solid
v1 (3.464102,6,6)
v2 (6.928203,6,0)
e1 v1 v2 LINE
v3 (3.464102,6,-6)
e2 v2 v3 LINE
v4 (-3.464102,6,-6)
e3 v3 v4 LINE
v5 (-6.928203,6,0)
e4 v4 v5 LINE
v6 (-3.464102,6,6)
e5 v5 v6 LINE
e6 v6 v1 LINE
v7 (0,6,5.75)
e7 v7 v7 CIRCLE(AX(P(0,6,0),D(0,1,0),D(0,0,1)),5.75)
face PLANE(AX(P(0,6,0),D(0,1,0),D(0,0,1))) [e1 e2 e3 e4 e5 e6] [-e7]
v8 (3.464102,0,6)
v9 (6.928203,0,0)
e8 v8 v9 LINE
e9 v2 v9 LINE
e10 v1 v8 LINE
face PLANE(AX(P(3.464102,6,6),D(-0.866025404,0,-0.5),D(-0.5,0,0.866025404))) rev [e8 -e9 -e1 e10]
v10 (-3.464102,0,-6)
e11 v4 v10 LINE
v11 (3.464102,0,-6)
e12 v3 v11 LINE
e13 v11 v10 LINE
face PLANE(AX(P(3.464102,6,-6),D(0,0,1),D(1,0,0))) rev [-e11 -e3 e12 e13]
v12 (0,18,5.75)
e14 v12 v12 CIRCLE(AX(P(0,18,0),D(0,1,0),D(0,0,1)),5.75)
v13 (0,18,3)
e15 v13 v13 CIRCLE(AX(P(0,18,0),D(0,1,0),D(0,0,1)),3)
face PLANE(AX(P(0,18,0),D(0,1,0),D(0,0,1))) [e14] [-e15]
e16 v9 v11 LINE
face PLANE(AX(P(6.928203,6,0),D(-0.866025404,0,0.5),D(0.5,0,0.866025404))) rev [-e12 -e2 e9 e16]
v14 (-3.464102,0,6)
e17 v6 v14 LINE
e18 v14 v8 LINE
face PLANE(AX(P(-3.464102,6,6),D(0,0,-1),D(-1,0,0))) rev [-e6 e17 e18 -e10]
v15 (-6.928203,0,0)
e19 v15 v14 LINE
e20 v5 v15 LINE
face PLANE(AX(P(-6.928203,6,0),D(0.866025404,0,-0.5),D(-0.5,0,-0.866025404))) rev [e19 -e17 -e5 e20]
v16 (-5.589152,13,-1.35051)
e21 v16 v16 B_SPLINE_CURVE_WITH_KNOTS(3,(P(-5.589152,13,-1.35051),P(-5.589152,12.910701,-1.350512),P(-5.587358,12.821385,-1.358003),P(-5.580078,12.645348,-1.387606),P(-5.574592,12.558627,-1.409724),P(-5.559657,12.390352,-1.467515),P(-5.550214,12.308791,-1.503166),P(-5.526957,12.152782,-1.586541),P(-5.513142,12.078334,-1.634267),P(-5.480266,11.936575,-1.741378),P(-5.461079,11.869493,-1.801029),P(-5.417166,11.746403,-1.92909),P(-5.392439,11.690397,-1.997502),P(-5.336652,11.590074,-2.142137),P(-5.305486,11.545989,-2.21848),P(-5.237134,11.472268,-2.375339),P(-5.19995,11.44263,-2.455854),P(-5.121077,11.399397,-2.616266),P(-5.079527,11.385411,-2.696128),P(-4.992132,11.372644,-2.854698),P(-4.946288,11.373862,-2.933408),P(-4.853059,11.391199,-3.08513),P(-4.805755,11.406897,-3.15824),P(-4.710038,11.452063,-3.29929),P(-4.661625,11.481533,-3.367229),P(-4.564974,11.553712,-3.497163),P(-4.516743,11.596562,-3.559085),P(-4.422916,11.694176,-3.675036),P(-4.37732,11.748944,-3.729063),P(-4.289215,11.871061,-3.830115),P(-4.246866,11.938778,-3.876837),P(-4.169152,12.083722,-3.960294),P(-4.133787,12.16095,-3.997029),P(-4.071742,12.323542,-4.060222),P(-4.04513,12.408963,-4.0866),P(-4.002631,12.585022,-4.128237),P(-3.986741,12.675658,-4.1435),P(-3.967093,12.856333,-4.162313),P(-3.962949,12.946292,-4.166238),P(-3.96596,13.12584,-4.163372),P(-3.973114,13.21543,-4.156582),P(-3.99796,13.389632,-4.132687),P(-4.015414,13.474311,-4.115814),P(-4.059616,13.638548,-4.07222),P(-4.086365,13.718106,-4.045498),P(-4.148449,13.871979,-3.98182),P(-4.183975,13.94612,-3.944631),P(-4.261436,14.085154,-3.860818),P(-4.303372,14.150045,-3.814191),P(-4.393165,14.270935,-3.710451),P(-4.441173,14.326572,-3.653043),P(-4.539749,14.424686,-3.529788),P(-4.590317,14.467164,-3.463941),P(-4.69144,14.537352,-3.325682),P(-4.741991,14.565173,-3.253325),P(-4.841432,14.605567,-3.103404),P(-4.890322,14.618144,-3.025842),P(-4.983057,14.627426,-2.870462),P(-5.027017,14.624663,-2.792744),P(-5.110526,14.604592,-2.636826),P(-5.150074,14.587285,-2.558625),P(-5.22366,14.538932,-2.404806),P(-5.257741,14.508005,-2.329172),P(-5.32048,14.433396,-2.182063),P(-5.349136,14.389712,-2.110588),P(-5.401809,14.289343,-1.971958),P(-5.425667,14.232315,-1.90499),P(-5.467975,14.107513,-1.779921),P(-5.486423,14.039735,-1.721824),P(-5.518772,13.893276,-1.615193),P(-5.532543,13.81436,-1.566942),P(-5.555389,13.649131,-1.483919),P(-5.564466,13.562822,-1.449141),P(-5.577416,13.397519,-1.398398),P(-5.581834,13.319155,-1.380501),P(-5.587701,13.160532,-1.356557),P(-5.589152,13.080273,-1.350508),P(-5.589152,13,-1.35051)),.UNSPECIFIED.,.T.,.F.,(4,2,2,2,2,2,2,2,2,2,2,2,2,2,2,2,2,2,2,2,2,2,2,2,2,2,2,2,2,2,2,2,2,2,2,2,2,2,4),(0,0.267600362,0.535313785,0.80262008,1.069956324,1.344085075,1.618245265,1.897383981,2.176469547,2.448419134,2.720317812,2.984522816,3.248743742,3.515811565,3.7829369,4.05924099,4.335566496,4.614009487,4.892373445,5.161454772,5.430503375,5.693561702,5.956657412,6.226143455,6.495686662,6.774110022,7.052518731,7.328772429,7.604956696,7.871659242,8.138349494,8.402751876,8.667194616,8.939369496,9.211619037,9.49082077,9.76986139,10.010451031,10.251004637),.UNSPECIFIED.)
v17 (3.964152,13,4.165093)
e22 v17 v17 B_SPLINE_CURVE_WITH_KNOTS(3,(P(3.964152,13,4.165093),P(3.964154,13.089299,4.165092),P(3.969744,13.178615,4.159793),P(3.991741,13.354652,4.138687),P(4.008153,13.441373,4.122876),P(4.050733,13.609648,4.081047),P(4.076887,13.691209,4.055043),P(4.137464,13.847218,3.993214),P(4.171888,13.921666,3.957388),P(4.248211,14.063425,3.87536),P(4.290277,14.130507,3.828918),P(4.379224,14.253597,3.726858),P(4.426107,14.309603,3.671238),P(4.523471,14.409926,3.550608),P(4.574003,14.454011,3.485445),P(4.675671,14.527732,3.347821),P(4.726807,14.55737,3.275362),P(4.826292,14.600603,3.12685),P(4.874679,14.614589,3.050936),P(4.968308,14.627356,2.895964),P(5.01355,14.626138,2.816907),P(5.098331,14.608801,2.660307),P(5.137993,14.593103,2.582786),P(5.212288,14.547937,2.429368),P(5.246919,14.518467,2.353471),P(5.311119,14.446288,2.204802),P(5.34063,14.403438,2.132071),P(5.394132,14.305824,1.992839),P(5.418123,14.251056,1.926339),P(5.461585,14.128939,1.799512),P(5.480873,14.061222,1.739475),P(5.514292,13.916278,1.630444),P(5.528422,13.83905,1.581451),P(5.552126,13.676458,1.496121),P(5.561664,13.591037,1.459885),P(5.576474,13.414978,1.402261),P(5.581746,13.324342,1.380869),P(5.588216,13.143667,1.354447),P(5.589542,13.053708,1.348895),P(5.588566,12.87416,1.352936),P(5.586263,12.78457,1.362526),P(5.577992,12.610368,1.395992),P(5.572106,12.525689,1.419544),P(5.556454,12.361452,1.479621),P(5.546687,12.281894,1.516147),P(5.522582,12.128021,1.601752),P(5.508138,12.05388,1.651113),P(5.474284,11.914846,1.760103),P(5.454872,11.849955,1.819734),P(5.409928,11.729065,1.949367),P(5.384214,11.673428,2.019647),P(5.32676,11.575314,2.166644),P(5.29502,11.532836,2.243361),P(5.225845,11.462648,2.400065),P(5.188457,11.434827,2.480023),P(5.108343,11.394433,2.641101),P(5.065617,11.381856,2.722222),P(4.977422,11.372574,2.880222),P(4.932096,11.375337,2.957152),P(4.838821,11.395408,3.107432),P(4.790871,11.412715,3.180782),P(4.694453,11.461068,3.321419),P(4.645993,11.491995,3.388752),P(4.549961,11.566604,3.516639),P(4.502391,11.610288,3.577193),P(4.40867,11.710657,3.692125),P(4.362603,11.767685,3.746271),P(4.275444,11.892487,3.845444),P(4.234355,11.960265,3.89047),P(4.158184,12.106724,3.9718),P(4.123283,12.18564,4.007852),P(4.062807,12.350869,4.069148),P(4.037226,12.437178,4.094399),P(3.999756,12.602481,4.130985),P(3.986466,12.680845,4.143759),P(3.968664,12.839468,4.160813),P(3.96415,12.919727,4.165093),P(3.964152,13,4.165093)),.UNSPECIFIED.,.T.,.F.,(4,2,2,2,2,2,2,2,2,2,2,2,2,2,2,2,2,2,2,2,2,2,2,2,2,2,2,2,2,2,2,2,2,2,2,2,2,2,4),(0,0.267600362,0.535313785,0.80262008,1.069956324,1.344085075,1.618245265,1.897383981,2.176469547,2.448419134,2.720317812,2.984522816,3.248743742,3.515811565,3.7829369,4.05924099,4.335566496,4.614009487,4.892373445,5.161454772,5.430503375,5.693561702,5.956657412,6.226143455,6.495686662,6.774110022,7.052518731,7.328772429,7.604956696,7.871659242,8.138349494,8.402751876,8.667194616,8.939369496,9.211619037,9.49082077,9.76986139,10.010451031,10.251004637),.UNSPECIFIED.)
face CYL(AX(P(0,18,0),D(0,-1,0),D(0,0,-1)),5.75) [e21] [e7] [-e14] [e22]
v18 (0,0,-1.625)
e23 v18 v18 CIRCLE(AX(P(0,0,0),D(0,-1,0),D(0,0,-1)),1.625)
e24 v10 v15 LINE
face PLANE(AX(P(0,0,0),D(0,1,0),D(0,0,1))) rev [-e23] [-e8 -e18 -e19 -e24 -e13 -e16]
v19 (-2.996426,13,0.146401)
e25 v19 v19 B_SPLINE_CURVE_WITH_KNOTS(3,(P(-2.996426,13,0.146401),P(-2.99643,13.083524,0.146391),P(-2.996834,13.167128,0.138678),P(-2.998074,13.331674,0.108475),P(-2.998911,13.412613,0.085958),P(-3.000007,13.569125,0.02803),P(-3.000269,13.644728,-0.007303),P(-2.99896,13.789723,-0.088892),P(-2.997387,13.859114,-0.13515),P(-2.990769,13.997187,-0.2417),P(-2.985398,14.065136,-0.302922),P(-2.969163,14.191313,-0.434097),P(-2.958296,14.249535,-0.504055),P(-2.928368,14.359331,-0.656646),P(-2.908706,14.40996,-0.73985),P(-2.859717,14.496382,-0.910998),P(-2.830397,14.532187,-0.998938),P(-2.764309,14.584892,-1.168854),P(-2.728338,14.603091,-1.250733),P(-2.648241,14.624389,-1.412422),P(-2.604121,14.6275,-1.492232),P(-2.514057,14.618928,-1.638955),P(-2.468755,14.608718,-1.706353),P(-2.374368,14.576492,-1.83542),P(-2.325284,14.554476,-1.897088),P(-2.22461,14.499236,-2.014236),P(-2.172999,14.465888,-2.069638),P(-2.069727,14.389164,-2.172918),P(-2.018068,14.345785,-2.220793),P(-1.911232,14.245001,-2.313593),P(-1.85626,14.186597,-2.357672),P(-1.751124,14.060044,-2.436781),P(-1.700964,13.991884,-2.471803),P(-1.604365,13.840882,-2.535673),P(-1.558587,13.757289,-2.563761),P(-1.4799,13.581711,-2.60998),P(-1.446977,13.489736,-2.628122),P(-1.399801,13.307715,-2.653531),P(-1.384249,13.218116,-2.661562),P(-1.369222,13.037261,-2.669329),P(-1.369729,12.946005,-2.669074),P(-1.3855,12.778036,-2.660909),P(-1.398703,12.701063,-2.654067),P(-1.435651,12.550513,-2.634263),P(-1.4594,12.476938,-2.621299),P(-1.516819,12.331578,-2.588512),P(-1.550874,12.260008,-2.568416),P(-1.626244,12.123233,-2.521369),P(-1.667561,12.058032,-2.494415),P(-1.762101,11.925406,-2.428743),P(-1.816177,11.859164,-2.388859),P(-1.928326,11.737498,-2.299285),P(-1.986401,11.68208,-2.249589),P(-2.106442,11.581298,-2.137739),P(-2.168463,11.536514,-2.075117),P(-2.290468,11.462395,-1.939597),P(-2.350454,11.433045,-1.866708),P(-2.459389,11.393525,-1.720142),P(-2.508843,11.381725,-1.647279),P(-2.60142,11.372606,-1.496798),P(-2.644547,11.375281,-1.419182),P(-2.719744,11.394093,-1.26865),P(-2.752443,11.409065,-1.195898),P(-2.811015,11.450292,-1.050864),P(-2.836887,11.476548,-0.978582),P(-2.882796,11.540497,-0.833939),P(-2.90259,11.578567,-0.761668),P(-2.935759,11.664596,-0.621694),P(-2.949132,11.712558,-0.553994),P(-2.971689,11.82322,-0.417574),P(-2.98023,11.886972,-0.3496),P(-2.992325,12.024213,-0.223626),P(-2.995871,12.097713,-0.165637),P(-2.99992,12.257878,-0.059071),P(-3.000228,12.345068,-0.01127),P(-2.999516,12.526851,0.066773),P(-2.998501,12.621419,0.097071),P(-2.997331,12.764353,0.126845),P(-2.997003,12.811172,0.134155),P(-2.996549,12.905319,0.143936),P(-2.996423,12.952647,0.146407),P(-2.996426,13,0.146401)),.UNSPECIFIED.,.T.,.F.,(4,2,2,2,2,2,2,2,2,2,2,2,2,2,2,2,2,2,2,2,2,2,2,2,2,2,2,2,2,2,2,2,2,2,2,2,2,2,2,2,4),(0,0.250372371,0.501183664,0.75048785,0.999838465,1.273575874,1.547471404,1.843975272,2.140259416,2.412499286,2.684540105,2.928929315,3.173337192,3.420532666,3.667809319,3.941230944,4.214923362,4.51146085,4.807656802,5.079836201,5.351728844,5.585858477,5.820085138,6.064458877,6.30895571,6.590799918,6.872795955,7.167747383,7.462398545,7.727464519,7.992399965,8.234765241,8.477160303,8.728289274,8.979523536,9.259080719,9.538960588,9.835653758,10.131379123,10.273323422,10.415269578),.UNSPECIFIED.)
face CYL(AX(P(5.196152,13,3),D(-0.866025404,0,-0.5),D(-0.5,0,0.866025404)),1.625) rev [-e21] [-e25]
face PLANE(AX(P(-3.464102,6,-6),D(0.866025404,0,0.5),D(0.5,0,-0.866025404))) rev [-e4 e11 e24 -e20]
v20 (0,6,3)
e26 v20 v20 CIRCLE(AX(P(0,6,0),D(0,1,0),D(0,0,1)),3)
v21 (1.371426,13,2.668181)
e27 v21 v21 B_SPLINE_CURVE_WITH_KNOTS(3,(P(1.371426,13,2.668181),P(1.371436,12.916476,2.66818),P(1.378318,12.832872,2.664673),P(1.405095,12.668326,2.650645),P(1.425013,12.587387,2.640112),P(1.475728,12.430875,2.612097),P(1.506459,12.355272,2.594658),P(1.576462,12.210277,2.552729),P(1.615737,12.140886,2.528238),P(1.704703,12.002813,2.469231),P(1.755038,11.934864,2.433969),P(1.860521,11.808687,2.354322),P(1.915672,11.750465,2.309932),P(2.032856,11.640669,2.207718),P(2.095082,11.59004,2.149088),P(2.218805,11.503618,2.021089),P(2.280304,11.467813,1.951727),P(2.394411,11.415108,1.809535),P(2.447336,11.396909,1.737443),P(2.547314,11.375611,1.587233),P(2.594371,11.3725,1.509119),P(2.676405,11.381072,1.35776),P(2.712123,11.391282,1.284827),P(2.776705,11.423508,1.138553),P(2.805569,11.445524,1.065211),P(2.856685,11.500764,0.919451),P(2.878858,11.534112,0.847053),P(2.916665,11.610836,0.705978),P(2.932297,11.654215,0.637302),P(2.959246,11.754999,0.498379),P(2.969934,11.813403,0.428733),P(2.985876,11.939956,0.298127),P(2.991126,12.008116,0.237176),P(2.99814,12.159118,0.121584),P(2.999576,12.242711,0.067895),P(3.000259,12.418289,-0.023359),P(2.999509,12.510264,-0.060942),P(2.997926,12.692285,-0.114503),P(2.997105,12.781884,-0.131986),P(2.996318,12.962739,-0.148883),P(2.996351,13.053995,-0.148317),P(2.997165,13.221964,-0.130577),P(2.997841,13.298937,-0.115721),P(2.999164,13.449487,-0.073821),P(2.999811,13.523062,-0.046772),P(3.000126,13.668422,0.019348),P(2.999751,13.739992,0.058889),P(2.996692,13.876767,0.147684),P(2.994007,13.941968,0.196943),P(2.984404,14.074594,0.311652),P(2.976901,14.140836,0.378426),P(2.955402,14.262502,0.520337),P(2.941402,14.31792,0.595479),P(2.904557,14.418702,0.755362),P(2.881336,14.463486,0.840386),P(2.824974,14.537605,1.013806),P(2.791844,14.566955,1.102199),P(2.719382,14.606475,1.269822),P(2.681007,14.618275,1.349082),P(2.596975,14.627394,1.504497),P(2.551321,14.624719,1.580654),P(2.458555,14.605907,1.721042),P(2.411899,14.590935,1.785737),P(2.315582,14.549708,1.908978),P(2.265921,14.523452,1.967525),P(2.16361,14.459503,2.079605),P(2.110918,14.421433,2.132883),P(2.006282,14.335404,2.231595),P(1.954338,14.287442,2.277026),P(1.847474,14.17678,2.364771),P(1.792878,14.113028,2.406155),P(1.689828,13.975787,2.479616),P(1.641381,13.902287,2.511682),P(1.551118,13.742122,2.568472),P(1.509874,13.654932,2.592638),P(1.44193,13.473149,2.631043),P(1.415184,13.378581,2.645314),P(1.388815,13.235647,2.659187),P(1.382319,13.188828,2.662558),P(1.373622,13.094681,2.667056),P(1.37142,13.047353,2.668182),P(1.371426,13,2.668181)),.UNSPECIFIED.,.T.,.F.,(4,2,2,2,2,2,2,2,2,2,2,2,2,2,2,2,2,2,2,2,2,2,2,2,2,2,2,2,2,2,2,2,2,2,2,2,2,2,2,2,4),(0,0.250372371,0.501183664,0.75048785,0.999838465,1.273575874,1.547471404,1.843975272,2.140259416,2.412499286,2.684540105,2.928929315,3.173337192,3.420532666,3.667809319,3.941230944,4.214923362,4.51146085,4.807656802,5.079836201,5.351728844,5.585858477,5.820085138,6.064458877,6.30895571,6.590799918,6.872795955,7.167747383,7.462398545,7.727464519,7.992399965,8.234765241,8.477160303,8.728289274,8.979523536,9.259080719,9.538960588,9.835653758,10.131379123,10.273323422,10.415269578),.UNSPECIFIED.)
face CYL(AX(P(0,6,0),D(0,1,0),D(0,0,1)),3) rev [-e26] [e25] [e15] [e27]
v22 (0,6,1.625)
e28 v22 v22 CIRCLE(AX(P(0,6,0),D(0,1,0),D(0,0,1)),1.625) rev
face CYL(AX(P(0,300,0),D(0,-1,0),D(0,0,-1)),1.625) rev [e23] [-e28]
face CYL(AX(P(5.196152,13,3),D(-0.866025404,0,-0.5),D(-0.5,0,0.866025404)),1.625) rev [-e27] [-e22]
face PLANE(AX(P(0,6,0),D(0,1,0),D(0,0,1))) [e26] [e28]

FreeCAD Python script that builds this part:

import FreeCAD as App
import Part
import Sketcher
Q = App.Units.Quantity

doc = App.newDocument("Part")
params = doc.addObject("Spreadsheet::Sheet", "Params")
for row, (alias, value) in enumerate([
    ("pad1_length", "6 mm"),
    ("sketch2_diameter", "11.5 mm"),
    ("pad2_length", "12 mm"),
    ("sketch3_diameter", "3.25 mm"),
    ("pocket1_length", "300 mm"),
    ("sketch4_diameter", "6 mm"),
    ("pocket2_length", "12 mm"),
    ("sketch5_diameter", "3.25 mm"),
    ("pocket3_length", "12 mm"),
], start=1):
    params.set(f"A{row}", alias)
    params.set(f"B{row}", "=" + value)
    params.setAlias(f"B{row}", alias)

body = doc.addObject("PartDesign::Body", "Body")

sketch1 = body.newObject("Sketcher::SketchObject", "Sketch")
sketch1.AttachmentSupport = (doc.getObject("XZ_Plane"), [""])
sketch1.MapMode = "FlatFace"
sketch1.addGeometry([
    Part.LineSegment(App.Vector(6.928203, 0, 0), App.Vector(3.464102, -6, 0)),
    Part.LineSegment(App.Vector(3.464102, -6, 0), App.Vector(-3.464102, -6, 0)),
    Part.LineSegment(App.Vector(-3.464102, -6, 0), App.Vector(-6.928203, 0, 0)),
    Part.LineSegment(App.Vector(-6.928203, 0, 0), App.Vector(-3.464102, 6, 0)),
    Part.LineSegment(App.Vector(-3.464102, 6, 0), App.Vector(3.464102, 6, 0)),
    Part.LineSegment(App.Vector(3.464102, 6, 0), App.Vector(6.928203, 0, 0)),
], False)
sketch1.addConstraint([
    Sketcher.Constraint("Coincident", 0, 2, 1, 1),
    Sketcher.Constraint("Coincident", 1, 2, 2, 1),
    Sketcher.Constraint("Coincident", 2, 2, 3, 1),
    Sketcher.Constraint("Coincident", 3, 2, 4, 1),
    Sketcher.Constraint("Coincident", 4, 2, 5, 1),
    Sketcher.Constraint("Coincident", 5, 2, 0, 1),
    Sketcher.Constraint("Horizontal", 1),
    Sketcher.Constraint("Horizontal", 4),
    Sketcher.Constraint("Symmetric", 0, 2, 3, 2, -1, 1),
    Sketcher.Constraint("Symmetric", 2, 2, 5, 2, -1, 1),
    Sketcher.Constraint("PointOnObject", 2, 2, -1),
    Sketcher.Constraint("Parallel", 2, 5),
    Sketcher.Constraint("Vertical", 1, 2, 3, 2),
    Sketcher.Constraint("Angle", 0, Q("-120 deg")),
    Sketcher.Constraint("DistanceY", 0, 2, -1, 1, 6.0),
    Sketcher.Constraint("DistanceX", -1, 1, 0, 2, 3.464102),
])
pad1 = body.newObject("PartDesign::Pad", "Pad")
pad1.Profile = sketch1
pad1.setExpression("Length", "Params.pad1_length")
pad1.Reversed = True

sketch2 = body.newObject("Sketcher::SketchObject", "Sketch001")
sketch2.AttachmentSupport = (doc.getObject("XZ_Plane"), [""])
sketch2.MapMode = "FlatFace"
sketch2.AttachmentOffset = App.Placement(App.Vector(0, 0, -6), App.Rotation())
sketch2.addGeometry(Part.Circle(App.Vector(0, 0, 0), App.Vector(0, 0, 1), 5.75), False)
sketch2.addConstraint([
    Sketcher.Constraint("Coincident", 0, 3, -1, 1),
    Sketcher.Constraint("Diameter", 0, 11.5),
])
sketch2.setExpression("Constraints[1]", "Params.sketch2_diameter")
pad2 = body.newObject("PartDesign::Pad", "Pad001")
pad2.Profile = sketch2
pad2.setExpression("Length", "Params.pad2_length")
pad2.Reversed = True

sketch3 = body.newObject("Sketcher::SketchObject", "Sketch002")
sketch3.AttachmentSupport = (doc.getObject("XZ_Plane"), [""])
sketch3.MapMode = "FlatFace"
sketch3.addGeometry(Part.Circle(App.Vector(0, 0, 0), App.Vector(0, 0, 1), 1.625), False)
sketch3.addConstraint([
    Sketcher.Constraint("Coincident", 0, 3, -1, 1),
    Sketcher.Constraint("Diameter", 0, 3.25),
])
sketch3.setExpression("Constraints[1]", "Params.sketch3_diameter")
pocket1 = body.newObject("PartDesign::Pocket", "Pocket")
pocket1.Profile = sketch3
pocket1.setExpression("Length", "Params.pocket1_length")

sketch4 = body.newObject("Sketcher::SketchObject", "Sketch003")
sketch4.AttachmentSupport = (doc.getObject("XZ_Plane"), [""])
sketch4.MapMode = "FlatFace"
sketch4.AttachmentOffset = App.Placement(App.Vector(0, 0, -18), App.Rotation())
sketch4.addGeometry(Part.Circle(App.Vector(0, 0, 0), App.Vector(0, 0, 1), 3), False)
sketch4.addConstraint([
    Sketcher.Constraint("Coincident", 0, 3, -1, 1),
    Sketcher.Constraint("Diameter", 0, 6.0),
])
sketch4.setExpression("Constraints[1]", "Params.sketch4_diameter")
pocket2 = body.newObject("PartDesign::Pocket", "Pocket001")
pocket2.Profile = sketch4
pocket2.setExpression("Length", "Params.pocket2_length")
pocket2.Reversed = True

sketch5 = body.newObject("Sketcher::SketchObject", "Sketch004")
sketch5.Placement = App.Placement(App.Vector(-5.196152, 0, -3), App.Rotation(App.Vector(-0.5, 0, 0.866025404), App.Vector(0, 1, 0), App.Vector(-0.866025404, 0, -0.5), "ZXY"))
sketch5.addGeometry(Part.Circle(App.Vector(0, 13, 0), App.Vector(0, 0, 1), 1.625), False)
sketch5.addConstraint([
    Sketcher.Constraint("PointOnObject", 0, 3, -2),
    Sketcher.Constraint("Diameter", 0, 3.25),
    Sketcher.Constraint("DistanceY", -1, 1, 0, 3, 13.0),
])
sketch5.setExpression("Constraints[1]", "Params.sketch5_diameter")
pocket3 = body.newObject("PartDesign::Pocket", "Pocket002")
pocket3.Profile = sketch5
pocket3.setExpression("Length", "Params.pocket3_length")

doc.recompute()
